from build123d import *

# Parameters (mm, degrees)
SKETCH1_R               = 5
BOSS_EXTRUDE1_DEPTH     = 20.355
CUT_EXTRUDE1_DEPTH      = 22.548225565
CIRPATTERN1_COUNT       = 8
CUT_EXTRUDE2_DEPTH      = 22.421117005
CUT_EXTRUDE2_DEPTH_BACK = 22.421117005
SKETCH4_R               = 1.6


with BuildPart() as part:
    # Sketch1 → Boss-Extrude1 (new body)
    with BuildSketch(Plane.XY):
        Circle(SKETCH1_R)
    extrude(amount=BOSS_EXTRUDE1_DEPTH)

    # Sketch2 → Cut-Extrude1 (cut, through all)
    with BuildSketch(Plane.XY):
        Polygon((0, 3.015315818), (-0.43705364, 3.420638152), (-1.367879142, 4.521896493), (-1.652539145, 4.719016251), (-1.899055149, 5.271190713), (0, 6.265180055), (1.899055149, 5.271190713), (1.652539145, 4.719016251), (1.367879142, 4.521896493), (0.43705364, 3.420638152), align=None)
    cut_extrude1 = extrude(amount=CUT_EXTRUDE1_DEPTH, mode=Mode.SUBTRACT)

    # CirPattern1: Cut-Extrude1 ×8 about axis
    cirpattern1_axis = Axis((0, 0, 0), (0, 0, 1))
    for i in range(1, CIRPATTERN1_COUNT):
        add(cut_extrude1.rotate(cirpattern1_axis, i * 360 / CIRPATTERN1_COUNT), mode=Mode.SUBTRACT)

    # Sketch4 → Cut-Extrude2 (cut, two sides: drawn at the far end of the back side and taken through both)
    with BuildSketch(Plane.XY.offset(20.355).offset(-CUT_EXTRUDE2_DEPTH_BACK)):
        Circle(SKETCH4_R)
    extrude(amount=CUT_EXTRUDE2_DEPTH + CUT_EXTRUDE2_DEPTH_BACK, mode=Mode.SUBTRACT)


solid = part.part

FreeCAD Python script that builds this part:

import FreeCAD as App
import Part
import Sketcher
from FreeCAD import Vector


def add_polygon(sketch, points):
    """Adds a closed chain of lines whose ends are joined by coincident constraints."""
    first, n = sketch.GeometryCount, len(points)
    for a, b in zip(points, points[1:] + points[:1]):
        sketch.addGeometry(Part.LineSegment(App.Vector(*a, 0), App.Vector(*b, 0)), False)
    for i in range(n):
        sketch.addConstraint(Sketcher.Constraint("Coincident", first + i, 2, first + (i + 1) % n, 1))

doc = App.newDocument("Part")
body = doc.addObject("PartDesign::Body", "Body")

# Sketch on XY plane
sketch1 = body.newObject("Sketcher::SketchObject", "Sketch")
sketch1.AttachmentSupport = (doc.getObject("XY_Plane"), [""])
sketch1.MapMode = "FlatFace"
sketch1.addGeometry(Part.Circle(Vector(0, 0, 0), Vector(0, 0, 1), 5), False)
sketch1.addConstraint([
    Sketcher.Constraint("Coincident", 0, 3, -1, 1),
    Sketcher.Constraint("Diameter", 0, 10.0),
])
pad1 = body.newObject("PartDesign::Pad", "Pad")
pad1.Profile = sketch1
pad1.Length = 20.355

# Sketch on XY plane
sketch2 = body.newObject("Sketcher::SketchObject", "Sketch001")
sketch2.AttachmentSupport = (doc.getObject("XY_Plane"), [""])
sketch2.MapMode = "FlatFace"
add_polygon(sketch2, [(-0.44, 3.42), (0, 3.02), (0.44, 3.42), (1.37, 4.52), (1.65, 4.72), (1.9, 5.27), (0, 6.27), (-1.9, 5.27), (-1.65, 4.72), (-1.37, 4.52)])  # lines 0-9
sketch2.addConstraint([
    Sketcher.Constraint("Symmetric", 4, 2, 6, 2, -2),
    Sketcher.Constraint("Symmetric", 3, 2, 7, 2, -2),
    Sketcher.Constraint("Symmetric", 2, 2, 8, 2, -2),
    Sketcher.Constraint("Symmetric", 1, 2, 9, 2, -2),
    Sketcher.Constraint("PointOnObject", 0, 2, -2),
    Sketcher.Constraint("PointOnObject", 5, 2, -2),
    Sketcher.Constraint("DistanceX", 1, 2, 4, 2, 1.462002),
    Sketcher.Constraint("DistanceY", 0, 2, 3, 2, 1.7037),
    Sketcher.Constraint("Distance", 5, 2.143461),
    Sketcher.Constraint("DistanceY", -1, 1, 1, 2, 3.420638),
    Sketcher.Constraint("DistanceX", -1, 1, 2, 2, 1.367879),
    Sketcher.Constraint("DistanceX", -1, 1, 3, 2, 1.652539),
    Sketcher.Constraint("DistanceY", -1, 1, 4, 2, 5.271191),
    Sketcher.Constraint("DistanceY", -1, 1, 5, 2, 6.26518),
    Sketcher.Constraint("DistanceY", 1, 2, 2, 2, 1.101258),
    Sketcher.Constraint("DistanceY", 0, 2, 2, 2, 1.506581),
])
pocket1 = body.newObject("PartDesign::Pocket", "Pocket")
pocket1.Profile = sketch2
pocket1.Type = "ThroughAll"
pocket1.Reversed = True
doc.recompute()

polarpattern = body.newObject("PartDesign::PolarPattern", "PolarPattern")
polarpattern.Originals = [pocket1]
polarpattern.Axis = (doc.getObject("Z_Axis"), [""])
polarpattern.Angle = 360
polarpattern.Occurrences = 8
body.Tip = polarpattern

# Sketch on XY plane
sketch3 = body.newObject("Sketcher::SketchObject", "Sketch002")
sketch3.AttachmentSupport = (doc.getObject("XY_Plane"), [""])
sketch3.MapMode = "FlatFace"
sketch3.AttachmentOffset = App.Placement(Vector(0, 0, 20.355), App.Rotation())
sketch3.addGeometry(Part.Circle(Vector(0, 0, 0), Vector(0, 0, 1), 1.6), False)
sketch3.addConstraint([
    Sketcher.Constraint("Coincident", 0, 3, -1, 1),
    Sketcher.Constraint("Diameter", 0, 3.2),
])
pocket2 = body.newObject("PartDesign::Pocket", "Pocket001")
pocket2.Profile = sketch3
pocket2.Type = "ThroughAll"
pocket2.Midplane = True

doc.recompute()
